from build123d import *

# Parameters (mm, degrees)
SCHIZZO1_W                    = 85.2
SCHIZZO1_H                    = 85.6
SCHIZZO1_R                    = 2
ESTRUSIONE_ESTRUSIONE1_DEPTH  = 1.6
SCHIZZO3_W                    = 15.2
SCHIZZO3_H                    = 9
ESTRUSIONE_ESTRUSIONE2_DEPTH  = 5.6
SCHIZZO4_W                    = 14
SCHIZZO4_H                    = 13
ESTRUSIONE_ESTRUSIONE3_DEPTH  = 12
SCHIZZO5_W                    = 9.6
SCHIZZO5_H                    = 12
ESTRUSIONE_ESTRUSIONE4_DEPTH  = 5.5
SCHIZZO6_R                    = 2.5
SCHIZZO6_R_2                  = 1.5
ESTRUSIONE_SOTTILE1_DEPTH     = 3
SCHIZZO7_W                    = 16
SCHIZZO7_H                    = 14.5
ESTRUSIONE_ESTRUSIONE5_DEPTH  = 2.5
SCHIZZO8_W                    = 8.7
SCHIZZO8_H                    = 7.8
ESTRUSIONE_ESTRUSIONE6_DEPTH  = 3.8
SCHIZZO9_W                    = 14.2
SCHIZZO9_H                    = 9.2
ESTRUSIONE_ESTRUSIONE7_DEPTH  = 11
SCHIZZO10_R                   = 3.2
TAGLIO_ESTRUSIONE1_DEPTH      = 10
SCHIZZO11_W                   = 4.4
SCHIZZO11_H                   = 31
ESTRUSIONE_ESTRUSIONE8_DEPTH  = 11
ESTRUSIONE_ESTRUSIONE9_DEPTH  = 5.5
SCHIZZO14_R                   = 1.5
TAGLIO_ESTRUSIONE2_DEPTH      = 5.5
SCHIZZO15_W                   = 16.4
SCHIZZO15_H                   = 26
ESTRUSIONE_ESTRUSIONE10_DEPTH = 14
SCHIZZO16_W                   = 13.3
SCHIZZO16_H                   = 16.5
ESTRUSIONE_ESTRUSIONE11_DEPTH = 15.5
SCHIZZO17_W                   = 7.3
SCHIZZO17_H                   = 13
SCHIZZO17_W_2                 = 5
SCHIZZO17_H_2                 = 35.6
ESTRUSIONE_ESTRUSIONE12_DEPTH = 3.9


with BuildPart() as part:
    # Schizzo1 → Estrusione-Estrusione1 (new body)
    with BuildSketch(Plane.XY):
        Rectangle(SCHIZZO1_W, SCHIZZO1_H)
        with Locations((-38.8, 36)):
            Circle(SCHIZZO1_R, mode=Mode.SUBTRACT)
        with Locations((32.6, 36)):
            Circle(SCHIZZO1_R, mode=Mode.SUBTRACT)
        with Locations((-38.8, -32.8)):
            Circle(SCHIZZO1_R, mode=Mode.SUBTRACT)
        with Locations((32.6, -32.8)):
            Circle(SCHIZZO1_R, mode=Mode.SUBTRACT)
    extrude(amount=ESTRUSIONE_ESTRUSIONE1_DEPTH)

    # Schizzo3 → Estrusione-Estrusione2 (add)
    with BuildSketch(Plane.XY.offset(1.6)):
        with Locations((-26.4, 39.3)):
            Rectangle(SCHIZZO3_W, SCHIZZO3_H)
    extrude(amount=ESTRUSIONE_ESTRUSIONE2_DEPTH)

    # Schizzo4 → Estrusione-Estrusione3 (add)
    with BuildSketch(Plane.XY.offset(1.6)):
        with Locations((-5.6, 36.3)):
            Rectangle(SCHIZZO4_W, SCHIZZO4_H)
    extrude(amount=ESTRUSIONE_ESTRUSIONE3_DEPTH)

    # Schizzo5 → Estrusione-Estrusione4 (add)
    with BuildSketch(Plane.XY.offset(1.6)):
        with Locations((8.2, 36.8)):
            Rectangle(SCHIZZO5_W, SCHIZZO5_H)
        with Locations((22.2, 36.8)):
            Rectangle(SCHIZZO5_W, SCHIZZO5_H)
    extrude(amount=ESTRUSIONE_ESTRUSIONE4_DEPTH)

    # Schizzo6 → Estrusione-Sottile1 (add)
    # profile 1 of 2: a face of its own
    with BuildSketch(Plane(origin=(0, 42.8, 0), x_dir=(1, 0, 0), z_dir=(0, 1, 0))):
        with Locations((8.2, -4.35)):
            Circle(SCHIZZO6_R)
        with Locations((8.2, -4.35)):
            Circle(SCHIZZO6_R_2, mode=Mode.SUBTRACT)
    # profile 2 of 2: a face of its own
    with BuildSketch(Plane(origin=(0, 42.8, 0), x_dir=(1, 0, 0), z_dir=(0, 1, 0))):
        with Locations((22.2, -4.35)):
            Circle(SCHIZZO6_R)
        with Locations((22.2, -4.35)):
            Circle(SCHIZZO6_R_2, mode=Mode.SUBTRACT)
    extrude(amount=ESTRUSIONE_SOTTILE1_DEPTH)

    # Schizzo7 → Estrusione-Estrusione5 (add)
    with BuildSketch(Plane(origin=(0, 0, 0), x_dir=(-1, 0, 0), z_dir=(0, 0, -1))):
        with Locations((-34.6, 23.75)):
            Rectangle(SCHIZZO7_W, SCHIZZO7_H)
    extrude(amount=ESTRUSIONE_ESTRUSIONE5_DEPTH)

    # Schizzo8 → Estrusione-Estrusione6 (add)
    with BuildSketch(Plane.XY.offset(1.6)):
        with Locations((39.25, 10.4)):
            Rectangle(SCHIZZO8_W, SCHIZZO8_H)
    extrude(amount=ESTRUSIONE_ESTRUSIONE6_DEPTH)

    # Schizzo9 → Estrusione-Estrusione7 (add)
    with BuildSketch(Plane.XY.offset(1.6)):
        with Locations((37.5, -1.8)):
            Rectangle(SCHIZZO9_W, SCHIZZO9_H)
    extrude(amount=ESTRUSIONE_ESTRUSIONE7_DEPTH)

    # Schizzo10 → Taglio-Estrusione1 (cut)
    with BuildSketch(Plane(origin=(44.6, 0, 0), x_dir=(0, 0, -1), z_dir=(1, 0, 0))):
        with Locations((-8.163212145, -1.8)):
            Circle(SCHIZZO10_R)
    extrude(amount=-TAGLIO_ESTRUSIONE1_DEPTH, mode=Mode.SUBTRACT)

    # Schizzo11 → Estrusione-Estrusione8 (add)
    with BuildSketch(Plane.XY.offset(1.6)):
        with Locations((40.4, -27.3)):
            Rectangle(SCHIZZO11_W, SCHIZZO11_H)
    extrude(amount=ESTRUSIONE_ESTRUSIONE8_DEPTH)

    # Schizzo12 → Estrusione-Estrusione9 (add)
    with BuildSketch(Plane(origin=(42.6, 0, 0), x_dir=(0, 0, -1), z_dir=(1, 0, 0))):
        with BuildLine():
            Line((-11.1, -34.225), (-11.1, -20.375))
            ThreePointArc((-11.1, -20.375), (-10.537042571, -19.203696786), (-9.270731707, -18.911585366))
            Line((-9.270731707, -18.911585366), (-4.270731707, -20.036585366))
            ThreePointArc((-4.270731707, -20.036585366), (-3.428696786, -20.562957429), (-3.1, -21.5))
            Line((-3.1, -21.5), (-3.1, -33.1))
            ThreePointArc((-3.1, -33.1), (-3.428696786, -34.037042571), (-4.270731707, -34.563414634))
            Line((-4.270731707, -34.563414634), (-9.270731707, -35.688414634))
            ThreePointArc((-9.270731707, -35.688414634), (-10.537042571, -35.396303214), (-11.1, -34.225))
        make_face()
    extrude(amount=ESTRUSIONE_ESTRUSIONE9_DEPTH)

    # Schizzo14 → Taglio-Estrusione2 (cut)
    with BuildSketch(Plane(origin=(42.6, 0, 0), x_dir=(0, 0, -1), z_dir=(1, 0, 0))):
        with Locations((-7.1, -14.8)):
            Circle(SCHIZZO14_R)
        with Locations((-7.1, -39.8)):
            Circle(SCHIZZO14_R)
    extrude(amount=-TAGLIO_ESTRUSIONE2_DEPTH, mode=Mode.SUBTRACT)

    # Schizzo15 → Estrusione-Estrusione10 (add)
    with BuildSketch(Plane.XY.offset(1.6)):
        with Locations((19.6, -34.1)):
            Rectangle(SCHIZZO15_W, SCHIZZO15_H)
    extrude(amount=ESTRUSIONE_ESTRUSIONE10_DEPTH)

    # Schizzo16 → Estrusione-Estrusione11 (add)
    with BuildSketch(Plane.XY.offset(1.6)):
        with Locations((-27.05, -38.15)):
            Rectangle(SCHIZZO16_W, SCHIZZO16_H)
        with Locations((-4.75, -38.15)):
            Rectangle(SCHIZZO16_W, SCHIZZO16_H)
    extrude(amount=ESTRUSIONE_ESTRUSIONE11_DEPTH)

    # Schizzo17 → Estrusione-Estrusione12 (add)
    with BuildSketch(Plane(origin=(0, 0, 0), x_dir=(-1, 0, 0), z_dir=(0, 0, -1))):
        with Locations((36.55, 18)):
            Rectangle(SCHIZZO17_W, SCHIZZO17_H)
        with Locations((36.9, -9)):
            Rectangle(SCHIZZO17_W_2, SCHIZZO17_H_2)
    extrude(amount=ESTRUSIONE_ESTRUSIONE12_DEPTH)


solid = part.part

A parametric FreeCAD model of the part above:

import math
import FreeCAD as App
import Part
import Sketcher
from FreeCAD import Vector


def add_polygon(sketch, points):
    """Adds a closed chain of lines whose ends are joined by coincident constraints."""
    first, n = sketch.GeometryCount, len(points)
    for a, b in zip(points, points[1:] + points[:1]):
        sketch.addGeometry(Part.LineSegment(App.Vector(*a, 0), App.Vector(*b, 0)), False)
    for i in range(n):
        sketch.addConstraint(Sketcher.Constraint("Coincident", first + i, 2, first + (i + 1) % n, 1))

doc = App.newDocument("Part")
body = doc.addObject("PartDesign::Body", "Body")

# Sketch on XY plane
sketch1 = body.newObject("Sketcher::SketchObject", "Sketch")
sketch1.AttachmentSupport = (doc.getObject("XY_Plane"), [""])
sketch1.MapMode = "FlatFace"
add_polygon(sketch1, [(-42.6, 42.8), (-42.6, -42.8), (42.6, -42.8), (42.6, 42.8)])  # lines 0-3
sketch1.addGeometry(Part.Circle(Vector(-38.8, -32.8, 0), Vector(0, 0, 1), 2), False)  # 4
sketch1.addGeometry(Part.Circle(Vector(32.6, -32.8, 0), Vector(0, 0, 1), 2), False)  # 5
sketch1.addGeometry(Part.Circle(Vector(-38.8, 36, 0), Vector(0, 0, 1), 2), False)  # 6
sketch1.addGeometry(Part.Circle(Vector(32.6, 36, 0), Vector(0, 0, 1), 2), False)  # 7
sketch1.addConstraint([
    Sketcher.Constraint("Vertical", 0),
    Sketcher.Constraint("Horizontal", 1),
    Sketcher.Constraint("Vertical", 2),
    Sketcher.Constraint("Horizontal", 3),
    Sketcher.Constraint("Equal", 4, 5),
    Sketcher.Constraint("Equal", 5, 6),
    Sketcher.Constraint("Equal", 6, 7),
    Sketcher.Constraint("Symmetric", 0, 2, 2, 2, -1, 1),
    Sketcher.Constraint("Horizontal", 4, 3, 5, 3),
    Sketcher.Constraint("Horizontal", 6, 3, 7, 3),
    Sketcher.Constraint("Vertical", 4, 3, 6, 3),
    Sketcher.Constraint("Vertical", 5, 3, 7, 3),
    Sketcher.Constraint("Diameter", 4, 4.0),
    Sketcher.Constraint("DistanceX", 1, 1, 1, 2, 85.2),
    Sketcher.Constraint("DistanceY", 0, 2, 0, 1, 85.6),
    Sketcher.Constraint("DistanceY", -1, 1, 6, 3, 36.0),
    Sketcher.Constraint("DistanceY", 0, 2, 4, 3, 10.0),
    Sketcher.Constraint("DistanceX", 5, 3, 1, 2, 10.0),
    Sketcher.Constraint("DistanceX", 4, 3, -1, 1, 38.8),
])
pad1 = body.newObject("PartDesign::Pad", "Pad")
pad1.Profile = sketch1
pad1.Length = 1.6

# Sketch on XY plane
sketch2 = body.newObject("Sketcher::SketchObject", "Sketch001")
sketch2.AttachmentSupport = (doc.getObject("XY_Plane"), [""])
sketch2.MapMode = "FlatFace"
sketch2.AttachmentOffset = App.Placement(Vector(0, 0, 1.6), App.Rotation())
add_polygon(sketch2, [(-34, 43.8), (-34, 34.8), (-18.8, 34.8), (-18.8, 43.8)])  # lines 0-3
sketch2.addConstraint([
    Sketcher.Constraint("Vertical", 0),
    Sketcher.Constraint("Horizontal", 1),
    Sketcher.Constraint("Vertical", 2),
    Sketcher.Constraint("Horizontal", 3),
    Sketcher.Constraint("DistanceY", 0, 2, 0, 1, 9.0),
    Sketcher.Constraint("DistanceX", 1, 1, 1, 2, 15.2),
    Sketcher.Constraint("DistanceX", 0, 2, -1, 1, 34.0),
    Sketcher.Constraint("DistanceY", -1, 1, 0, 2, 34.8),
])
pad2 = body.newObject("PartDesign::Pad", "Pad001")
pad2.Profile = sketch2
pad2.Length = 5.6

# Sketch on XY plane
sketch3 = body.newObject("Sketcher::SketchObject", "Sketch002")
sketch3.AttachmentSupport = (doc.getObject("XY_Plane"), [""])
sketch3.MapMode = "FlatFace"
sketch3.AttachmentOffset = App.Placement(Vector(0, 0, 1.6), App.Rotation())
add_polygon(sketch3, [(-12.6, 42.8), (-12.6, 29.8), (1.4, 29.8), (1.4, 42.8)])  # lines 0-3
sketch3.addConstraint([
    Sketcher.Constraint("Vertical", 0),
    Sketcher.Constraint("Horizontal", 1),
    Sketcher.Constraint("Vertical", 2),
    Sketcher.Constraint("Horizontal", 3),
    Sketcher.Constraint("DistanceX", 1, 1, 1, 2, 14.0),
    Sketcher.Constraint("DistanceY", 0, 2, 0, 1, 13.0),
    Sketcher.Constraint("DistanceX", 0, 2, -1, 1, 12.6),
    Sketcher.Constraint("DistanceY", -1, 1, 0, 2, 29.8),
])
pad3 = body.newObject("PartDesign::Pad", "Pad002")
pad3.Profile = sketch3
pad3.Length = 12

# Sketch on XY plane
sketch4 = body.newObject("Sketcher::SketchObject", "Sketch003")
sketch4.AttachmentSupport = (doc.getObject("XY_Plane"), [""])
sketch4.MapMode = "FlatFace"
sketch4.AttachmentOffset = App.Placement(Vector(0, 0, 1.6), App.Rotation())
add_polygon(sketch4, [(3.4, 42.8), (3.4, 30.8), (13, 30.8), (13, 42.8)])  # lines 0-3
add_polygon(sketch4, [(17.4, 42.8), (17.4, 30.8), (27, 30.8), (27, 42.8)])  # lines 4-7
sketch4.addConstraint([
    Sketcher.Constraint("Vertical", 0),
    Sketcher.Constraint("Horizontal", 1),
    Sketcher.Constraint("Vertical", 2),
    Sketcher.Constraint("Horizontal", 3),
    Sketcher.Constraint("Vertical", 4),
    Sketcher.Constraint("Horizontal", 5),
    Sketcher.Constraint("Vertical", 6),
    Sketcher.Constraint("Horizontal", 7),
    Sketcher.Constraint("Horizontal", 1, 2, 4, 2),
    Sketcher.Constraint("Horizontal", 3, 2, 6, 2),
    Sketcher.Constraint("Equal", 3, 5),
    Sketcher.Constraint("DistanceY", 0, 2, 0, 1, 12.0),
    Sketcher.Constraint("DistanceX", 1, 1, 1, 2, 9.6),
    Sketcher.Constraint("DistanceX", -1, 1, 1, 2, 13.0),
    Sketcher.Constraint("DistanceX", -1, 1, 5, 2, 27.0),
    Sketcher.Constraint("DistanceY", -1, 1, 0, 2, 30.8),
])
pad4 = body.newObject("PartDesign::Pad", "Pad003")
pad4.Profile = sketch4
pad4.Length = 5.5

# Sketch on XZ plane
sketch5 = body.newObject("Sketcher::SketchObject", "Sketch004")
sketch5.AttachmentSupport = (doc.getObject("XZ_Plane"), [""])
sketch5.MapMode = "FlatFace"
sketch5.AttachmentOffset = App.Placement(Vector(0, 0, -42.8), App.Rotation())
sketch5.addGeometry([
    Part.Circle(Vector(8.2, 4.35, 0), Vector(0, 0, 1), 2.5),
    Part.Circle(Vector(8.2, 4.35, 0), Vector(0, 0, 1), 1.5),
    Part.Circle(Vector(22.2, 4.35, 0), Vector(0, 0, 1), 2.5),
    Part.Circle(Vector(22.2, 4.35, 0), Vector(0, 0, 1), 1.5),
], False)
sketch5.addConstraint([
    Sketcher.Constraint("Coincident", 1, 3, 0, 3),
    Sketcher.Constraint("Coincident", 3, 3, 2, 3),
    Sketcher.Constraint("Equal", 0, 2),
    Sketcher.Constraint("Equal", 1, 3),
    Sketcher.Constraint("Horizontal", 1, 3, 2, 3),
    Sketcher.Constraint("Diameter", 0, 5.0),
    Sketcher.Constraint("Diameter", 1, 3.0),
    Sketcher.Constraint("DistanceX", 0, 3, 2, 3, 14.0),
    Sketcher.Constraint("DistanceX", -1, 1, 0, 3, 8.2),
    Sketcher.Constraint("DistanceY", -1, 1, 0, 3, 4.35),
])
pad5 = body.newObject("PartDesign::Pad", "Pad004")
pad5.Profile = sketch5
pad5.Length = 3
pad5.Reversed = True

# Sketch on XY plane
sketch6 = body.newObject("Sketcher::SketchObject", "Sketch005")
sketch6.AttachmentSupport = (doc.getObject("XY_Plane"), [""])
sketch6.MapMode = "FlatFace"
add_polygon(sketch6, [(42.6, 31), (42.6, 16.5), (26.6, 16.5), (26.6, 31)])  # lines 0-3
sketch6.addConstraint([
    Sketcher.Constraint("Vertical", 0),
    Sketcher.Constraint("Horizontal", 1),
    Sketcher.Constraint("Vertical", 2),
    Sketcher.Constraint("Horizontal", 3),
    Sketcher.Constraint("DistanceX", 1, 2, 1, 1, 16.0),
    Sketcher.Constraint("DistanceY", 0, 2, 0, 1, 14.5),
    Sketcher.Constraint("DistanceY", -1, 1, 2, 2, 31.0),
    Sketcher.Constraint("DistanceX", -1, 1, 0, 2, 42.6),
])
pad6 = body.newObject("PartDesign::Pad", "Pad005")
pad6.Profile = sketch6
pad6.Length = 2.5
pad6.Reversed = True

# Sketch on XY plane
sketch7 = body.newObject("Sketcher::SketchObject", "Sketch006")
sketch7.AttachmentSupport = (doc.getObject("XY_Plane"), [""])
sketch7.MapMode = "FlatFace"
sketch7.AttachmentOffset = App.Placement(Vector(0, 0, 1.6), App.Rotation())
add_polygon(sketch7, [(34.9, 14.3), (34.9, 6.5), (43.6, 6.5), (43.6, 14.3)])  # lines 0-3
sketch7.addConstraint([
    Sketcher.Constraint("Vertical", 0),
    Sketcher.Constraint("Horizontal", 1),
    Sketcher.Constraint("Vertical", 2),
    Sketcher.Constraint("Horizontal", 3),
    Sketcher.Constraint("DistanceX", 1, 1, 1, 2, 8.7),
    Sketcher.Constraint("DistanceY", 0, 2, 0, 1, 7.8),
    Sketcher.Constraint("DistanceX", -1, 1, 0, 2, 34.9),
    Sketcher.Constraint("DistanceY", -1, 1, 0, 2, 6.5),
])
pad7 = body.newObject("PartDesign::Pad", "Pad006")
pad7.Profile = sketch7
pad7.Length = 3.8

# Sketch on XY plane
sketch8 = body.newObject("Sketcher::SketchObject", "Sketch007")
sketch8.AttachmentSupport = (doc.getObject("XY_Plane"), [""])
sketch8.MapMode = "FlatFace"
sketch8.AttachmentOffset = App.Placement(Vector(0, 0, 1.6), App.Rotation())
add_polygon(sketch8, [(30.4, 2.8), (30.4, -6.4), (44.6, -6.4), (44.6, 2.8)])  # lines 0-3
sketch8.addConstraint([
    Sketcher.Constraint("Vertical", 0),
    Sketcher.Constraint("Horizontal", 1),
    Sketcher.Constraint("Vertical", 2),
    Sketcher.Constraint("Horizontal", 3),
    Sketcher.Constraint("DistanceX", 1, 1, 1, 2, 14.2),
    Sketcher.Constraint("DistanceY", 0, 2, 0, 1, 9.2),
    Sketcher.Constraint("DistanceX", -1, 1, 0, 2, 30.4),
    Sketcher.Constraint("DistanceY", 0, 2, -1, 1, 6.4),
])
pad8 = body.newObject("PartDesign::Pad", "Pad007")
pad8.Profile = sketch8
pad8.Length = 11

# Sketch on YZ plane
sketch9 = body.newObject("Sketcher::SketchObject", "Sketch008")
sketch9.AttachmentSupport = (doc.getObject("YZ_Plane"), [""])
sketch9.MapMode = "FlatFace"
sketch9.AttachmentOffset = App.Placement(Vector(0, 0, 44.6), App.Rotation())
sketch9.addGeometry(Part.Circle(Vector(-1.8, 8.163212, 0), Vector(0, 0, 1), 3.2), False)
sketch9.addConstraint([
    Sketcher.Constraint("Diameter", 0, 6.4),
    Sketcher.Constraint("DistanceX", 0, 3, -1, 1, 1.8),
    Sketcher.Constraint("DistanceY", -1, 1, 0, 3, 8.163212),
])
pocket1 = body.newObject("PartDesign::Pocket", "Pocket")
pocket1.Profile = sketch9
pocket1.Length = 10

# Sketch on XY plane
sketch10 = body.newObject("Sketcher::SketchObject", "Sketch009")
sketch10.AttachmentSupport = (doc.getObject("XY_Plane"), [""])
sketch10.MapMode = "FlatFace"
sketch10.AttachmentOffset = App.Placement(Vector(0, 0, 1.6), App.Rotation())
add_polygon(sketch10, [(38.2, -11.8), (38.2, -42.8), (42.6, -42.8), (42.6, -11.8)])  # lines 0-3
sketch10.addConstraint([
    Sketcher.Constraint("Vertical", 0),
    Sketcher.Constraint("Horizontal", 1),
    Sketcher.Constraint("Vertical", 2),
    Sketcher.Constraint("Horizontal", 3),
    Sketcher.Constraint("DistanceY", 0, 2, 0, 1, 31.0),
    Sketcher.Constraint("DistanceX", 1, 1, 1, 2, 4.4),
    Sketcher.Constraint("DistanceX", -1, 1, 0, 2, 38.2),
    Sketcher.Constraint("DistanceY", 0, 2, -1, 1, 42.8),
])
pad9 = body.newObject("PartDesign::Pad", "Pad008")
pad9.Profile = sketch10
pad9.Length = 11

# Sketch on YZ plane
sketch11 = body.newObject("Sketcher::SketchObject", "Sketch010")
sketch11.AttachmentSupport = (doc.getObject("YZ_Plane"), [""])
sketch11.MapMode = "FlatFace"
sketch11.AttachmentOffset = App.Placement(Vector(0, 0, 42.6), App.Rotation())
sketch11.addGeometry([
    Part.LineSegment(Vector(-20.375, 11.1, 0), Vector(-34.225, 11.1, 0)),  # 0
    Part.ArcOfCircle(Part.Circle(Vector(-34.225, 9.6, 0), Vector(0, 0, 1), 1.5), math.radians(90), math.radians(192.680383)),  # 1
    Part.LineSegment(Vector(-35.688415, 9.270732, 0), Vector(-34.563415, 4.270732, 0)),  # 2
    Part.ArcOfCircle(Part.Circle(Vector(-33.1, 4.6, 0), Vector(0, 0, 1), 1.5), math.radians(-167.319616), math.radians(-90)),  # 3
    Part.LineSegment(Vector(-33.1, 3.1, 0), Vector(-21.5, 3.1, 0)),  # 4
    Part.ArcOfCircle(Part.Circle(Vector(-21.5, 4.6, 0), Vector(0, 0, 1), 1.5), math.radians(-90), math.radians(-12.680384)),  # 5
    Part.LineSegment(Vector(-20.036585, 4.270732, 0), Vector(-18.911585, 9.270732, 0)),  # 6
    Part.ArcOfCircle(Part.Circle(Vector(-20.375, 9.6, 0), Vector(0, 0, 1), 1.5), math.radians(-12.680383), math.radians(90)),  # 7
], False)
sketch11.addConstraint([
    Sketcher.Constraint("Tangent", 0, 2, 1, 1),
    Sketcher.Constraint("Tangent", 1, 2, 2, 1),
    Sketcher.Constraint("Tangent", 2, 2, 3, 1),
    Sketcher.Constraint("Tangent", 3, 2, 4, 1),
    Sketcher.Constraint("Tangent", 4, 2, 5, 1),
    Sketcher.Constraint("Tangent", 5, 2, 6, 1),
    Sketcher.Constraint("Tangent", 6, 2, 7, 1),
    Sketcher.Constraint("Tangent", 7, 2, 0, 1),
    Sketcher.Constraint("Horizontal", 0),
    Sketcher.Constraint("Horizontal", 4),
    Sketcher.Constraint("Equal", 1, 3),
    Sketcher.Constraint("Equal", 3, 5),
    Sketcher.Constraint("Equal", 5, 7),
    Sketcher.Constraint("Horizontal", 2, 2, 5, 2),
    Sketcher.Constraint("Radius", 1, 1.5),
    Sketcher.Constraint("DistanceX", 4, 1, 4, 2, 11.6),
    Sketcher.Constraint("DistanceY", 3, 3, 1, 3, 5.0),
    Sketcher.Constraint("DistanceX", 0, 2, 0, 1, 13.85),
    Sketcher.Constraint("DistanceY", -1, 1, 1, 3, 9.6),
    Sketcher.Constraint("DistanceX", 3, 3, -1, 1, 33.1),
])
pad10 = body.newObject("PartDesign::Pad", "Pad009")
pad10.Profile = sketch11
pad10.Length = 5.5

# Sketch on YZ plane
sketch12 = body.newObject("Sketcher::SketchObject", "Sketch011")
sketch12.AttachmentSupport = (doc.getObject("YZ_Plane"), [""])
sketch12.MapMode = "FlatFace"
sketch12.AttachmentOffset = App.Placement(Vector(0, 0, 42.6), App.Rotation())
sketch12.addGeometry([
    Part.Circle(Vector(-14.8, 7.1, 0), Vector(0, 0, 1), 1.5),
    Part.Circle(Vector(-39.8, 7.1, 0), Vector(0, 0, 1), 1.5),
], False)
sketch12.addConstraint([
    Sketcher.Constraint("Equal", 0, 1),
    Sketcher.Constraint("Horizontal", 0, 3, 1, 3),
    Sketcher.Constraint("Diameter", 0, 3.0),
    Sketcher.Constraint("DistanceX", 1, 3, 0, 3, 25.0),
    Sketcher.Constraint("DistanceX", 0, 3, -1, 1, 14.8),
    Sketcher.Constraint("DistanceY", -1, 1, 0, 3, 7.1),
])
pocket2 = body.newObject("PartDesign::Pocket", "Pocket001")
pocket2.Profile = sketch12
pocket2.Length = 5.5

# Sketch on XY plane
sketch13 = body.newObject("Sketcher::SketchObject", "Sketch012")
sketch13.AttachmentSupport = (doc.getObject("XY_Plane"), [""])
sketch13.MapMode = "FlatFace"
sketch13.AttachmentOffset = App.Placement(Vector(0, 0, 1.6), App.Rotation())
add_polygon(sketch13, [(11.4, -21.1), (11.4, -47.1), (27.8, -47.1), (27.8, -21.1)])  # lines 0-3
sketch13.addConstraint([
    Sketcher.Constraint("Vertical", 0),
    Sketcher.Constraint("Horizontal", 1),
    Sketcher.Constraint("Vertical", 2),
    Sketcher.Constraint("Horizontal", 3),
    Sketcher.Constraint("DistanceY", 0, 2, 0, 1, 26.0),
    Sketcher.Constraint("DistanceX", 1, 1, 1, 2, 16.4),
    Sketcher.Constraint("DistanceX", -1, 1, 0, 2, 11.4),
    Sketcher.Constraint("DistanceY", 0, 2, -1, 1, 47.1),
])
pad11 = body.newObject("PartDesign::Pad", "Pad010")
pad11.Profile = sketch13
pad11.Length = 14

# Sketch on XY plane
sketch14 = body.newObject("Sketcher::SketchObject", "Sketch013")
sketch14.AttachmentSupport = (doc.getObject("XY_Plane"), [""])
sketch14.MapMode = "FlatFace"
sketch14.AttachmentOffset = App.Placement(Vector(0, 0, 1.6), App.Rotation())
add_polygon(sketch14, [(-33.7, -29.9), (-33.7, -46.4), (-20.4, -46.4), (-20.4, -29.9)])  # lines 0-3
add_polygon(sketch14, [(-11.4, -29.9), (-11.4, -46.4), (1.9, -46.4), (1.9, -29.9)])  # lines 4-7
sketch14.addConstraint([
    Sketcher.Constraint("Vertical", 0),
    Sketcher.Constraint("Horizontal", 1),
    Sketcher.Constraint("Vertical", 2),
    Sketcher.Constraint("Horizontal", 3),
    Sketcher.Constraint("Vertical", 4),
    Sketcher.Constraint("Horizontal", 5),
    Sketcher.Constraint("Vertical", 6),
    Sketcher.Constraint("Horizontal", 7),
    Sketcher.Constraint("Horizontal", 1, 2, 4, 2),
    Sketcher.Constraint("Horizontal", 3, 2, 6, 2),
    Sketcher.Constraint("Equal", 3, 5),
    Sketcher.Constraint("DistanceX", 1, 1, 1, 2, 13.3),
    Sketcher.Constraint("DistanceY", 0, 2, 0, 1, 16.5),
    Sketcher.Constraint("DistanceX", 1, 2, 4, 2, 9.0),
    Sketcher.Constraint("DistanceX", 0, 2, -1, 1, 33.7),
    Sketcher.Constraint("DistanceY", 0, 2, -1, 1, 46.4),
])
pad12 = body.newObject("PartDesign::Pad", "Pad011")
pad12.Profile = sketch14
pad12.Length = 15.5

# Sketch on XY plane
sketch15 = body.newObject("Sketcher::SketchObject", "Sketch014")
sketch15.AttachmentSupport = (doc.getObject("XY_Plane"), [""])
sketch15.MapMode = "FlatFace"
add_polygon(sketch15, [(-32.9, 24.5), (-32.9, 11.5), (-40.2, 11.5), (-40.2, 24.5)])  # lines 0-3
add_polygon(sketch15, [(-34.4, 8.8), (-34.4, -26.8), (-39.4, -26.8), (-39.4, 8.8)])  # lines 4-7
sketch15.addConstraint([
    Sketcher.Constraint("Vertical", 0),
    Sketcher.Constraint("Horizontal", 1),
    Sketcher.Constraint("Vertical", 2),
    Sketcher.Constraint("Horizontal", 3),
    Sketcher.Constraint("Vertical", 4),
    Sketcher.Constraint("Horizontal", 5),
    Sketcher.Constraint("Vertical", 6),
    Sketcher.Constraint("Horizontal", 7),
    Sketcher.Constraint("DistanceX", 5, 2, 5, 1, 5.0),
    Sketcher.Constraint("DistanceY", 0, 2, 0, 1, 13.0),
    Sketcher.Constraint("DistanceX", 1, 2, 1, 1, 7.3),
    Sketcher.Constraint("DistanceY", 4, 2, 4, 1, 35.6),
    Sketcher.Constraint("DistanceX", 0, 2, -1, 1, 32.9),
    Sketcher.Constraint("DistanceY", -1, 1, 0, 2, 11.5),
    Sketcher.Constraint("DistanceX", 4, 2, -1, 1, 34.4),
    Sketcher.Constraint("DistanceY", 4, 2, -1, 1, 26.8),
])
pad13 = body.newObject("PartDesign::Pad", "Pad012")
pad13.Profile = sketch15
pad13.Length = 3.9
pad13.Reversed = True

doc.recompute()
